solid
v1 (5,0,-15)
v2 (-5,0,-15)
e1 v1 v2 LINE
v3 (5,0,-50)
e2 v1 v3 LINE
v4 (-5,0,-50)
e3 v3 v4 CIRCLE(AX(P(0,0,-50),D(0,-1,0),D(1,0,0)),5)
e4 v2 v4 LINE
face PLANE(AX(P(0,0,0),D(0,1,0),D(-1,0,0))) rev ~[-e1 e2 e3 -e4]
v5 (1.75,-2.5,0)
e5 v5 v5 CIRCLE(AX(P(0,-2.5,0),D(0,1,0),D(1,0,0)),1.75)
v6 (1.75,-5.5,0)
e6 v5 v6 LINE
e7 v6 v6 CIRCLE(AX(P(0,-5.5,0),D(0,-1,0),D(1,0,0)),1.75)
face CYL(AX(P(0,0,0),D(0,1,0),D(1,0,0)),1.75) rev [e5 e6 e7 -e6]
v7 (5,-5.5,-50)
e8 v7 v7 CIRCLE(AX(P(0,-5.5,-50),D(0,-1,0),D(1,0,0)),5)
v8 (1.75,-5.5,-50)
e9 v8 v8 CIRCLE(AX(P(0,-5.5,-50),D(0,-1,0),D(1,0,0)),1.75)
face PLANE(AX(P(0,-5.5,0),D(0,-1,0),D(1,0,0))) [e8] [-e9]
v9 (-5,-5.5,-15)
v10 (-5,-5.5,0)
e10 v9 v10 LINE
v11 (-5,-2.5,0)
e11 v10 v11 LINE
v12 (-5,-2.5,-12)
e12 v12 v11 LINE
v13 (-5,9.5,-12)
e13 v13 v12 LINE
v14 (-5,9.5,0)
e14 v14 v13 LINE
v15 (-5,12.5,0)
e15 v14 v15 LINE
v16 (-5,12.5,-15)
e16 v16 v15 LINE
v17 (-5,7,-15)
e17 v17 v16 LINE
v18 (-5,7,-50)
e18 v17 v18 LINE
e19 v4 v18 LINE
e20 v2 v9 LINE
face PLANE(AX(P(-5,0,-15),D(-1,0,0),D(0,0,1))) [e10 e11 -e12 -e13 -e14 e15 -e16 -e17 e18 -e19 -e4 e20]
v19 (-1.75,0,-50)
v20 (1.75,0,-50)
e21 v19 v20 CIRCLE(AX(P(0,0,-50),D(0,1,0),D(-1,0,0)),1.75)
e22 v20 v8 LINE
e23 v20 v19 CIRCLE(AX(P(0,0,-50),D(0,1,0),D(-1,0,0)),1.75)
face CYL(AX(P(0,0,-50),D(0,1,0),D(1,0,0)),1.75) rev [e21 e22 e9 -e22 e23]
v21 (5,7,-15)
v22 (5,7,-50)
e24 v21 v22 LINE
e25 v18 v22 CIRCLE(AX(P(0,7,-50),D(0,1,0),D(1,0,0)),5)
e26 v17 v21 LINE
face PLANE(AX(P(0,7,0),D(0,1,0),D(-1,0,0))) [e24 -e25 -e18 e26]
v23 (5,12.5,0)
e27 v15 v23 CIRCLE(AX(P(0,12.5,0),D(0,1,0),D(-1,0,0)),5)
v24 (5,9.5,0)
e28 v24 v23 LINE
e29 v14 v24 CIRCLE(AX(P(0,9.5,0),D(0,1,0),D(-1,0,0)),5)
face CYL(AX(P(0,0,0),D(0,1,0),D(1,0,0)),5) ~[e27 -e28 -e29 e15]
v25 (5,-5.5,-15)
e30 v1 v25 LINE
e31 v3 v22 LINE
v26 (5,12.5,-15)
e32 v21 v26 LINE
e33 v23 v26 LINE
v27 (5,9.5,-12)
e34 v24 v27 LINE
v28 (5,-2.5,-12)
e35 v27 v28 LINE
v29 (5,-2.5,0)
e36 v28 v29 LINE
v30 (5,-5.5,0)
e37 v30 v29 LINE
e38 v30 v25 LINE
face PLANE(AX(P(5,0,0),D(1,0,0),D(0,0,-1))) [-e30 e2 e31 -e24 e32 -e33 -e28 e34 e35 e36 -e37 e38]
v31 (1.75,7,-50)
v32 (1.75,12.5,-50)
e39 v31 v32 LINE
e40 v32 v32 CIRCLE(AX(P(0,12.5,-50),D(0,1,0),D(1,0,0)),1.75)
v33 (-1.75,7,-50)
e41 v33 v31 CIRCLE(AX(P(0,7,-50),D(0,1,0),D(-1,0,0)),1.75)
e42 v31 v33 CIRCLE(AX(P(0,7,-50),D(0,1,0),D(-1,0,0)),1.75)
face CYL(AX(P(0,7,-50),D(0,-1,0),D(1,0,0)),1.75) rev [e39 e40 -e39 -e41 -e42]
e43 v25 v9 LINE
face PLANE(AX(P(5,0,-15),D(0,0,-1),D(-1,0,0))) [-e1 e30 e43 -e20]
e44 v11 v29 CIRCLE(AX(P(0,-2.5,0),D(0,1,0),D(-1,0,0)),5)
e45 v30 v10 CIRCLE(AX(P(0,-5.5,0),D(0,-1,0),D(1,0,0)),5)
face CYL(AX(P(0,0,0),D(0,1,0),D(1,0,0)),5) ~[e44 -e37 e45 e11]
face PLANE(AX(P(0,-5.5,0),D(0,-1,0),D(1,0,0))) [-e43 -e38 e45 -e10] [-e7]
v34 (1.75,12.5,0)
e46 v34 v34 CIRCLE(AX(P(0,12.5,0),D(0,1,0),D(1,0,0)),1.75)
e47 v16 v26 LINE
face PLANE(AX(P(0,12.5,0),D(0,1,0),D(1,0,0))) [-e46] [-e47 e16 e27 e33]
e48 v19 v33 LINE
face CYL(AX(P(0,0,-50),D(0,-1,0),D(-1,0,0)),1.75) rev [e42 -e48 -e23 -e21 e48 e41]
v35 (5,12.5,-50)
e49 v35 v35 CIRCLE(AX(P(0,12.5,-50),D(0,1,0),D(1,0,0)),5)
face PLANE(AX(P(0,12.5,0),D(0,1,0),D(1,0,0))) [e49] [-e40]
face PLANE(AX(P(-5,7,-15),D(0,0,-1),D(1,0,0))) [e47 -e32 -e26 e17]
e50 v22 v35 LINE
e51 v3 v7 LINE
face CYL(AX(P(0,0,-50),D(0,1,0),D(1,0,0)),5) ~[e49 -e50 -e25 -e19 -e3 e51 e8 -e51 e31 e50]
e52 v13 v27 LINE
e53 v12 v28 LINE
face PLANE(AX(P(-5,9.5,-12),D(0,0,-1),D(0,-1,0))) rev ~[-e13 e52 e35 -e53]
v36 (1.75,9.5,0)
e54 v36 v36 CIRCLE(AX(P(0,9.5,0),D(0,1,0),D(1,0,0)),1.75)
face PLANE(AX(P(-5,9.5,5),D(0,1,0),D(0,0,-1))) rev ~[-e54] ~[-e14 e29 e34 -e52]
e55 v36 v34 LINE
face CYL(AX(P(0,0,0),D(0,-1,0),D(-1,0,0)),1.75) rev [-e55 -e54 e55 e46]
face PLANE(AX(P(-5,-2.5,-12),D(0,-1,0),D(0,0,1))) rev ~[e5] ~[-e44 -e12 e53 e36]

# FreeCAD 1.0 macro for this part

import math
import FreeCAD as App
import Part
import Sketcher
Q = App.Units.Quantity


def add_polygon(sketch, points):
    """Adds a closed chain of lines whose ends are joined by coincident constraints."""
    first, n = sketch.GeometryCount, len(points)
    for a, b in zip(points, points[1:] + points[:1]):
        sketch.addGeometry(Part.LineSegment(App.Vector(*a, 0), App.Vector(*b, 0)), False)
    for i in range(n):
        sketch.addConstraint(Sketcher.Constraint("Coincident", first + i, 2, first + (i + 1) % n, 1))

doc = App.newDocument("Part")
body = doc.addObject("PartDesign::Body", "Body")

sketch1 = body.newObject("Sketcher::SketchObject", "Sketch")
sketch1.AttachmentSupport = (doc.getObject("XZ_Plane"), [""])
sketch1.MapMode = "FlatFace"
sketch1.addGeometry(Part.LineSegment(App.Vector(-5, -50, 0), App.Vector(-5, 0, 0)), False)
sketch1.addGeometry(Part.ArcOfCircle(Part.Circle(App.Vector(0, 0, 0), App.Vector(0, 0, 1), 5), math.radians(0), math.radians(180)), False)
sketch1.addGeometry(Part.LineSegment(App.Vector(5, 0, 0), App.Vector(5, -50, 0)), False)
sketch1.addGeometry(Part.ArcOfCircle(Part.Circle(App.Vector(0, -50, 0), App.Vector(0, 0, 1), 5), math.radians(180), math.radians(360)), False)
sketch1.addGeometry(Part.Circle(App.Vector(0, -50, 0), App.Vector(0, 0, 1), 1.75), False)
sketch1.addGeometry(Part.Circle(App.Vector(0, 0, 0), App.Vector(0, 0, 1), 1.75), False)
sketch1.addConstraint(Sketcher.Constraint("Tangent", 0, 2, 1, 2))
sketch1.addConstraint(Sketcher.Constraint("Tangent", 1, 1, 2, 1))
sketch1.addConstraint(Sketcher.Constraint("Tangent", 2, 2, 3, 2))
sketch1.addConstraint(Sketcher.Constraint("Tangent", 3, 1, 0, 1))
sketch1.addConstraint(Sketcher.Constraint("Vertical", 0))
sketch1.addConstraint(Sketcher.Constraint("Vertical", 2))
sketch1.addConstraint(Sketcher.Constraint("Coincident", 1, 3, -1, 1))
sketch1.addConstraint(Sketcher.Constraint("Coincident", 5, 3, -1, 1))
sketch1.addConstraint(Sketcher.Constraint("Coincident", 4, 3, 3, 3))
sketch1.addConstraint(Sketcher.Constraint("Equal", 4, 5))
sketch1.addConstraint(Sketcher.Constraint("Radius", 1, Q("5 mm")))
sketch1.addConstraint(Sketcher.Constraint("Diameter", 4, Q("3.5 mm")))
sketch1.addConstraint(Sketcher.Constraint("DistanceY", 0, 1, 0, 2, Q("50 mm")))
pad1 = body.newObject("PartDesign::Pad", "Pad")
pad1.Profile = sketch1
pad1.Length = 7
pad1.Reversed = True

sketch2 = body.newObject("Sketcher::SketchObject", "Sketch001")
sketch2.AttachmentSupport = (doc.getObject("XZ_Plane"), [""])
sketch2.MapMode = "FlatFace"
sketch2.AttachmentOffset = App.Placement(App.Vector(0, 0, -7), App.Rotation())
sketch2.addGeometry(Part.LineSegment(App.Vector(5, -15, 0), App.Vector(-5, -15, 0)), False)
sketch2.addGeometry(Part.LineSegment(App.Vector(-5, -15, 0), App.Vector(-5, 0, 0)), False)
sketch2.addGeometry(Part.ArcOfCircle(Part.Circle(App.Vector(0, 0, 0), App.Vector(0, 0, 1), 5), math.radians(0), math.radians(180)), False)
sketch2.addGeometry(Part.LineSegment(App.Vector(5, 0, 0), App.Vector(5, -15, 0)), False)
sketch2.addGeometry(Part.Circle(App.Vector(0, 0, 0), App.Vector(0, 0, 1), 1.75), False)
sketch2.addConstraint(Sketcher.Constraint("Coincident", 0, 2, 1, 1))
sketch2.addConstraint(Sketcher.Constraint("Tangent", 1, 2, 2, 2))
sketch2.addConstraint(Sketcher.Constraint("Tangent", 2, 1, 3, 1))
sketch2.addConstraint(Sketcher.Constraint("Coincident", 3, 2, 0, 1))
sketch2.addConstraint(Sketcher.Constraint("Horizontal", 0))
sketch2.addConstraint(Sketcher.Constraint("Vertical", 1))
sketch2.addConstraint(Sketcher.Constraint("Vertical", 3))
sketch2.addConstraint(Sketcher.Constraint("Coincident", 2, 3, -1, 1))
sketch2.addConstraint(Sketcher.Constraint("Coincident", 4, 3, -1, 1))
sketch2.addConstraint(Sketcher.Constraint("DistanceY", 1, 1, 1, 2, Q("15 mm")))
sketch2.addConstraint(Sketcher.Constraint("Radius", 2, Q("5 mm")))
sketch2.addConstraint(Sketcher.Constraint("Diameter", 4, Q("3.5 mm")))
pad2 = body.newObject("PartDesign::Pad", "Pad001")
pad2.Profile = sketch2
pad2.Length = 5.5
pad2.Reversed = True

sketch3 = body.newObject("Sketcher::SketchObject", "Sketch002")
sketch3.AttachmentSupport = (doc.getObject("XZ_Plane"), [""])
sketch3.MapMode = "FlatFace"
sketch3.AttachmentOffset = App.Placement(App.Vector(0, 0, -7), App.Rotation())
sketch3.addGeometry(Part.Circle(App.Vector(0, -50, 0), App.Vector(0, 0, 1), 5), False)
sketch3.addGeometry(Part.Circle(App.Vector(0, -50, 0), App.Vector(0, 0, 1), 1.75), False)
sketch3.addConstraint(Sketcher.Constraint("Coincident", 1, 3, 0, 3))
sketch3.addConstraint(Sketcher.Constraint("PointOnObject", 0, 3, -2))
sketch3.addConstraint(Sketcher.Constraint("Diameter", 0, Q("10 mm")))
sketch3.addConstraint(Sketcher.Constraint("Diameter", 1, Q("3.5 mm")))
sketch3.addConstraint(Sketcher.Constraint("DistanceY", 0, 3, -1, 1, Q("50 mm")))
pad3 = body.newObject("PartDesign::Pad", "Pad002")
pad3.Profile = sketch3
pad3.Length = 5.5
pad3.Reversed = True

sketch4 = body.newObject("Sketcher::SketchObject", "Sketch003")
sketch4.AttachmentSupport = (doc.getObject("XZ_Plane"), [""])
sketch4.MapMode = "FlatFace"
sketch4.addGeometry(Part.Circle(App.Vector(0, -50, 0), App.Vector(0, 0, 1), 5), False)
sketch4.addGeometry(Part.Circle(App.Vector(0, -50, 0), App.Vector(0, 0, 1), 1.75), False)
sketch4.addConstraint(Sketcher.Constraint("Coincident", 1, 3, 0, 3))
sketch4.addConstraint(Sketcher.Constraint("PointOnObject", 0, 3, -2))
sketch4.addConstraint(Sketcher.Constraint("Diameter", 0, Q("10 mm")))
sketch4.addConstraint(Sketcher.Constraint("Diameter", 1, Q("3.5 mm")))
sketch4.addConstraint(Sketcher.Constraint("DistanceY", 0, 3, -1, 1, Q("50 mm")))
pad4 = body.newObject("PartDesign::Pad", "Pad003")
pad4.Profile = sketch4
pad4.Length = 5.5

sketch5 = body.newObject("Sketcher::SketchObject", "Sketch004")
sketch5.AttachmentSupport = (doc.getObject("XZ_Plane"), [""])
sketch5.MapMode = "FlatFace"
sketch5.addGeometry(Part.LineSegment(App.Vector(-5, 0, 0), App.Vector(-5, -15, 0)), False)
sketch5.addGeometry(Part.LineSegment(App.Vector(-5, -15, 0), App.Vector(5, -15, 0)), False)
sketch5.addGeometry(Part.LineSegment(App.Vector(5, -15, 0), App.Vector(5, 0, 0)), False)
sketch5.addGeometry(Part.ArcOfCircle(Part.Circle(App.Vector(0, 0, 0), App.Vector(0, 0, 1), 5), math.radians(0), math.radians(180)), False)
sketch5.addGeometry(Part.Circle(App.Vector(0, 0, 0), App.Vector(0, 0, 1), 1.75), False)
sketch5.addConstraint(Sketcher.Constraint("Coincident", 0, 2, 1, 1))
sketch5.addConstraint(Sketcher.Constraint("Coincident", 1, 2, 2, 1))
sketch5.addConstraint(Sketcher.Constraint("Tangent", 2, 2, 3, 1))
sketch5.addConstraint(Sketcher.Constraint("Tangent", 3, 2, 0, 1))
sketch5.addConstraint(Sketcher.Constraint("Vertical", 0))
sketch5.addConstraint(Sketcher.Constraint("Horizontal", 1))
sketch5.addConstraint(Sketcher.Constraint("Vertical", 2))
sketch5.addConstraint(Sketcher.Constraint("Coincident", 3, 3, -1, 1))
sketch5.addConstraint(Sketcher.Constraint("Coincident", 4, 3, -1, 1))
sketch5.addConstraint(Sketcher.Constraint("Radius", 3, Q("5 mm")))
sketch5.addConstraint(Sketcher.Constraint("Diameter", 4, Q("3.5 mm")))
sketch5.addConstraint(Sketcher.Constraint("DistanceY", 0, 2, 0, 1, Q("15 mm")))
pad5 = body.newObject("PartDesign::Pad", "Pad004")
pad5.Profile = sketch5
pad5.Length = 5.5

sketch6 = body.newObject("Sketcher::SketchObject", "Sketch005")
sketch6.AttachmentSupport = (doc.getObject("YZ_Plane"), [""])
sketch6.MapMode = "FlatFace"
sketch6.AttachmentOffset = App.Placement(App.Vector(0, 0, -5), App.Rotation())
add_polygon(sketch6, [(-2.5, 5), (9.5, 5), (9.5, -12), (-2.5, -12)])
sketch6.addConstraint(Sketcher.Constraint("Horizontal", 0))
sketch6.addConstraint(Sketcher.Constraint("Vertical", 1))
sketch6.addConstraint(Sketcher.Constraint("Horizontal", 2))
sketch6.addConstraint(Sketcher.Constraint("Vertical", 3))
sketch6.addConstraint(Sketcher.Constraint("DistanceX", 0, 1, 0, 2, Q("12 mm")))
sketch6.addConstraint(Sketcher.Constraint("DistanceY", 1, 2, 1, 1, Q("17 mm")))
sketch6.addConstraint(Sketcher.Constraint("DistanceY", 1, 2, -1, 1, Q("12 mm")))
sketch6.addConstraint(Sketcher.Constraint("DistanceX", -1, 1, 0, 2, Q("9.5 mm")))
pocket1 = body.newObject("PartDesign::Pocket", "Pocket")
pocket1.Profile = sketch6
pocket1.Type = "UpToFirst"
pocket1.Reversed = True

doc.recompute()
